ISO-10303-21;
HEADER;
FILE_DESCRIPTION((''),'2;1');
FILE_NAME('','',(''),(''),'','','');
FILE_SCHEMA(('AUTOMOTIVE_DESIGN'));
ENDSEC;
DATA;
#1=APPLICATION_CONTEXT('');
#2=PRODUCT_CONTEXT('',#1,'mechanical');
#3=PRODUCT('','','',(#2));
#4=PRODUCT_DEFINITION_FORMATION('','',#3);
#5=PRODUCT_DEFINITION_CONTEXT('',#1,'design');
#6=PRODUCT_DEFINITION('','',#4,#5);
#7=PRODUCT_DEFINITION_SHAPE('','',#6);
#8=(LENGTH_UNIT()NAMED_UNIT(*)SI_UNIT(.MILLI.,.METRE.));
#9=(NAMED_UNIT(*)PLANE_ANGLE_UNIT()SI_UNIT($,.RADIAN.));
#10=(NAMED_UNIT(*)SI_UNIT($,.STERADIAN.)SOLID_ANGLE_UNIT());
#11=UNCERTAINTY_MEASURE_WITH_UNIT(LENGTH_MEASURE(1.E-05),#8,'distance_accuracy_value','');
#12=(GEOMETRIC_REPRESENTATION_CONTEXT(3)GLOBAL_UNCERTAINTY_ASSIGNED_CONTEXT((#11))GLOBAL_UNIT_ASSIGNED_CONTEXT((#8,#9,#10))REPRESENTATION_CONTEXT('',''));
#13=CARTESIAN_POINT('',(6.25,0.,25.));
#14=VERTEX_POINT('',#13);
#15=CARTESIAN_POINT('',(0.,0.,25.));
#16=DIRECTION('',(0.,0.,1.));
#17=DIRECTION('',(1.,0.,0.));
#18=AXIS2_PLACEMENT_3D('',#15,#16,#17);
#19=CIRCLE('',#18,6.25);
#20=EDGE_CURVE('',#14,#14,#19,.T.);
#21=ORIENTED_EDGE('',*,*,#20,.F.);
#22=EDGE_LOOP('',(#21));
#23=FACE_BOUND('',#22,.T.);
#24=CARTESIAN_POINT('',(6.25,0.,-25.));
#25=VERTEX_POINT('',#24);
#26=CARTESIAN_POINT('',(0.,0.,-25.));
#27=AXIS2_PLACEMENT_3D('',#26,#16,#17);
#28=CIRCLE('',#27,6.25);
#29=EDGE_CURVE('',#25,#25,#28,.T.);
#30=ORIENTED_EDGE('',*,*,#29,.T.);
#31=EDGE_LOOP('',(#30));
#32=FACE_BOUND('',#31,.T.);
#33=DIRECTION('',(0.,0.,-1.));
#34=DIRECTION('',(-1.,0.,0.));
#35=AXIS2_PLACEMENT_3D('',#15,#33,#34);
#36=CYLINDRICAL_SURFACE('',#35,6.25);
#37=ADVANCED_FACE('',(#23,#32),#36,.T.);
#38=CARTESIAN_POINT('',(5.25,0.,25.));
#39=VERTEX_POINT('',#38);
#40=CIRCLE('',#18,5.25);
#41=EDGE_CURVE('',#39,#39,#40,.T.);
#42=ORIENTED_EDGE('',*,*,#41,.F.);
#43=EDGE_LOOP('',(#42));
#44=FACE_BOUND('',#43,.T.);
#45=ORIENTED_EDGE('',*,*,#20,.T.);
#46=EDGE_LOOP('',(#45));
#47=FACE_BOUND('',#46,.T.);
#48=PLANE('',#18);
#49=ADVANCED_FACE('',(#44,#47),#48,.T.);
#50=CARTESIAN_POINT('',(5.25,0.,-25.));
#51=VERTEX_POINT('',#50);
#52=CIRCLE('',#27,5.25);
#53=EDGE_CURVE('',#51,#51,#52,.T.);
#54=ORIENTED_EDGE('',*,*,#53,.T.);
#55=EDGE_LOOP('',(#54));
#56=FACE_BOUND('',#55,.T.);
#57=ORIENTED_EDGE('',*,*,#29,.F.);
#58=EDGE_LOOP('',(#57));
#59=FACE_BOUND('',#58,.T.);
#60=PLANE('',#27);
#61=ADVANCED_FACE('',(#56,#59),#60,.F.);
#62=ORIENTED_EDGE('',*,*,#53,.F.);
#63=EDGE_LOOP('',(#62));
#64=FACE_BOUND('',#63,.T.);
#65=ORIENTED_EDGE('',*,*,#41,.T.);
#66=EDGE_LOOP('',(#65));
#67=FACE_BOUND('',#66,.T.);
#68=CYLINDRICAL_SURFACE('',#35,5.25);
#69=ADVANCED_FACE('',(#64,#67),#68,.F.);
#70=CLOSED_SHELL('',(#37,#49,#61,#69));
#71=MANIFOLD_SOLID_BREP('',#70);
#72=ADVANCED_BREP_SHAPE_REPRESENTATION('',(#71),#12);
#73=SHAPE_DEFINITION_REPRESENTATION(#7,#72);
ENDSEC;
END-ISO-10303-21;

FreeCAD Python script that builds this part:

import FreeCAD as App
import Part
import Sketcher
from FreeCAD import Vector

doc = App.newDocument("Part")
body = doc.addObject("PartDesign::Body", "Body")

# Sketch on XY plane
sketch1 = body.newObject("Sketcher::SketchObject", "Sketch")
sketch1.AttachmentSupport = (doc.getObject("XY_Plane"), [""])
sketch1.MapMode = "FlatFace"
sketch1.addGeometry([
    Part.Circle(Vector(0, 0, 0), Vector(0, 0, 1), 6.25),
    Part.Circle(Vector(0, 0, 0), Vector(0, 0, 1), 5.25),
], False)
sketch1.addConstraint([
    Sketcher.Constraint("Coincident", 0, 3, -1, 1),
    Sketcher.Constraint("Coincident", 1, 3, -1, 1),
    Sketcher.Constraint("Diameter", 0, 12.5),
    Sketcher.Constraint("Diameter", 1, 10.5),
])
pad1 = body.newObject("PartDesign::Pad", "Pad")
pad1.Profile = sketch1
pad1.Length = 50
pad1.Midplane = True

doc.recompute()
